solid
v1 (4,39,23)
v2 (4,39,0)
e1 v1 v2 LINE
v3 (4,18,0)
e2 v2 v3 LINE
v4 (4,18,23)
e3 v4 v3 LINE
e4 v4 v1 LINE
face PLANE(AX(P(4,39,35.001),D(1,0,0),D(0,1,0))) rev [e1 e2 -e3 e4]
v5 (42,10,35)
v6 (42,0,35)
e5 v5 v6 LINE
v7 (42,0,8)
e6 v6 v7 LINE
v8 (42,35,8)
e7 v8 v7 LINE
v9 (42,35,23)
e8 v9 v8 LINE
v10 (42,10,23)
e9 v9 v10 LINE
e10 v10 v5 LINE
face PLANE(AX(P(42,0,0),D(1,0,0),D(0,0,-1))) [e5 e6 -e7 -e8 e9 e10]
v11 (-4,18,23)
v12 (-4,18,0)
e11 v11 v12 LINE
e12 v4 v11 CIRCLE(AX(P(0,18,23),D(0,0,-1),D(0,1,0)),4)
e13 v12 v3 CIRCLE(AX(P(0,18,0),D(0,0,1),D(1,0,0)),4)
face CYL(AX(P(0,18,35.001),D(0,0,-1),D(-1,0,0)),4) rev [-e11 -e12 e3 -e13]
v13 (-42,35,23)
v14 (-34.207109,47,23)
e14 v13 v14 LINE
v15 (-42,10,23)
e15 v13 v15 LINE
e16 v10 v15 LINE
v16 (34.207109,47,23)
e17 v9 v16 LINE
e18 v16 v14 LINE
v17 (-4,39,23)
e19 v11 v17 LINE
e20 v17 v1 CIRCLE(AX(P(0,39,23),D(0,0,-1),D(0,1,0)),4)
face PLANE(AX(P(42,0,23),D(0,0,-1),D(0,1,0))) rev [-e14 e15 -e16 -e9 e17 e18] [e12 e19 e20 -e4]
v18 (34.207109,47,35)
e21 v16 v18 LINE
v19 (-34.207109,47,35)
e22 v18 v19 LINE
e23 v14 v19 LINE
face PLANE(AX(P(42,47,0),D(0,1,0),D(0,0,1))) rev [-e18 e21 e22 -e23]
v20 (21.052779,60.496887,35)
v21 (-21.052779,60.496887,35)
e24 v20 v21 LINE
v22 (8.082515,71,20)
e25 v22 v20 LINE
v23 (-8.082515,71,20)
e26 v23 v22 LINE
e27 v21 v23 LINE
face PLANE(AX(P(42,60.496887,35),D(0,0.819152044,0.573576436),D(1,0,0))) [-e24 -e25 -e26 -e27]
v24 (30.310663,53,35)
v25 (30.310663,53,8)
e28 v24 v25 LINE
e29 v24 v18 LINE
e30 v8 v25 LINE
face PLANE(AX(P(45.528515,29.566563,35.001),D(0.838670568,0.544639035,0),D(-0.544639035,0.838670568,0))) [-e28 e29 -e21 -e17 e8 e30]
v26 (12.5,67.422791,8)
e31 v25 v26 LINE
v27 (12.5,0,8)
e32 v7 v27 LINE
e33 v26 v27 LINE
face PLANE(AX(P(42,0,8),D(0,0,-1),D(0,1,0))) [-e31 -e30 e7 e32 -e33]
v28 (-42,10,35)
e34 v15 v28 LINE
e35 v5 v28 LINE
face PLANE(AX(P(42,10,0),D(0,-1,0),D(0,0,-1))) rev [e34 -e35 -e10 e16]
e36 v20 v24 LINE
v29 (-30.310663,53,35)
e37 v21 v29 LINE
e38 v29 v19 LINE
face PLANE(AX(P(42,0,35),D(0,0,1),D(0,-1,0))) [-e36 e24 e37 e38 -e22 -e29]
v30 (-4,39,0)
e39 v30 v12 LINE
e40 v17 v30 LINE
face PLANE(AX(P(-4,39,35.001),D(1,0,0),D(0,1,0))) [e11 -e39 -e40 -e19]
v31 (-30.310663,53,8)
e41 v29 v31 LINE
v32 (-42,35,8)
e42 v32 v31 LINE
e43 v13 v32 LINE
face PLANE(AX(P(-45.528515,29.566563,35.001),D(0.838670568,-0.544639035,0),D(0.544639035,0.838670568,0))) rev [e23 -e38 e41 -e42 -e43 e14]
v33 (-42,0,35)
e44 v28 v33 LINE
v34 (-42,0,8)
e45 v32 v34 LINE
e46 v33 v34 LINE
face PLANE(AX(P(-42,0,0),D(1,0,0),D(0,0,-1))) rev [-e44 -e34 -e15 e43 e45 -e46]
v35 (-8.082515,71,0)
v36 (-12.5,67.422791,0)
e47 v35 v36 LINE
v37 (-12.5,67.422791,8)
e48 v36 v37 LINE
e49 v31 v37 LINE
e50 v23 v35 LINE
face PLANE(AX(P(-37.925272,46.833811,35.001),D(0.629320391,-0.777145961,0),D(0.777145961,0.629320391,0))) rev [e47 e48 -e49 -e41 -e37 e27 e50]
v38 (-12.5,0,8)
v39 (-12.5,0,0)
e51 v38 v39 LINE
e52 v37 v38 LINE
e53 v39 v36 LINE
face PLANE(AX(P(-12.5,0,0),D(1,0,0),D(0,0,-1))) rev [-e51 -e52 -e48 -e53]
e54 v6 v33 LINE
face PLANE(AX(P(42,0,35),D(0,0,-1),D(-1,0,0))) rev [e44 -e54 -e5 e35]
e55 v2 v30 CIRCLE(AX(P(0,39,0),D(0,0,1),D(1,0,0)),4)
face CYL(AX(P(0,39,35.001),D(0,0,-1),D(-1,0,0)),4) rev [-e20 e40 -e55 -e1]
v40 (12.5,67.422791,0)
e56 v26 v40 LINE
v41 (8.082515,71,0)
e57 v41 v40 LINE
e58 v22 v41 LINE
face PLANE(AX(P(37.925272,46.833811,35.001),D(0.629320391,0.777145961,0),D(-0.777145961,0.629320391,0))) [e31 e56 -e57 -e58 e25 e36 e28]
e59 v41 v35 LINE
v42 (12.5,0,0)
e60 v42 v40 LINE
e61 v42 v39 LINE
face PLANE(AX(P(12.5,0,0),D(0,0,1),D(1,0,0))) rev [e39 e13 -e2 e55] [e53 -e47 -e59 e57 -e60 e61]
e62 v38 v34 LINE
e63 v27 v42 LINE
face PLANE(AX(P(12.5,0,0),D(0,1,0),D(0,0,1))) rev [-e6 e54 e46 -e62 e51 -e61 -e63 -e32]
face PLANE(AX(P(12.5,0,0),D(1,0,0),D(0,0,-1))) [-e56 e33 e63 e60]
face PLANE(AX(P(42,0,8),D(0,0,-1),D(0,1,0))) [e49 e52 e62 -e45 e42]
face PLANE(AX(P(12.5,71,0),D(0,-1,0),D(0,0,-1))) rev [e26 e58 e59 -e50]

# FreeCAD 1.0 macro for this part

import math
import FreeCAD as App
import Part
import Sketcher
Q = App.Units.Quantity


def edges_at(feature, points):
    """Names of the edges that pass closest to the given points."""
    edges = feature.Shape.Edges
    near = lambda p: min(range(len(edges)), key=lambda i: edges[i].distToShape(Part.Vertex(*p))[0])
    return sorted({f"Edge{near(p) + 1}" for p in points})


def add_polygon(sketch, points):
    """Adds a closed chain of lines whose ends are joined by coincident constraints."""
    first, n = sketch.GeometryCount, len(points)
    for a, b in zip(points, points[1:] + points[:1]):
        sketch.addGeometry(Part.LineSegment(App.Vector(*a, 0), App.Vector(*b, 0)), False)
    for i in range(n):
        sketch.addConstraint(Sketcher.Constraint("Coincident", first + i, 2, first + (i + 1) % n, 1))

doc = App.newDocument("Part")
body = doc.addObject("PartDesign::Body", "Body")

# Sketch on YZ plane
sketch1 = doc.addObject("Sketcher::SketchObject", "Sketch")
body.addObject(sketch1)
sketch1.AttachmentSupport = (doc.YZ_Plane, [""])
sketch1.MapMode = "FlatFace"
add_polygon(sketch1, [(71, 8), (0, 8), (0, 0), (71, 0)])  # lines 0-3
sketch1.addConstraint([
    Sketcher.Constraint("Horizontal", 0),
    Sketcher.Constraint("Vertical", 1),
    Sketcher.Constraint("Horizontal", 2),
    Sketcher.Constraint("Vertical", 3),
    Sketcher.Constraint("Coincident", 1, 2, -1, 1),
    Sketcher.Constraint("DistanceX", 0, 2, 0, 1, Q("71 mm")),
    Sketcher.Constraint("DistanceY", 1, 2, 1, 1, Q("8 mm")),
])
pad1 = doc.addObject("PartDesign::Pad", "Pad")
body.addObject(pad1)
pad1.Profile = sketch1
pad1.Length = 25
pad1.Midplane = True

# Sketch on YZ plane
sketch2 = doc.addObject("Sketcher::SketchObject", "Sketch001")
body.addObject(sketch2)
sketch2.AttachmentSupport = (doc.YZ_Plane, [""])
sketch2.MapMode = "FlatFace"
add_polygon(sketch2, [(0, 35), (0, 8), (71, 8), (71, 35), (47, 35), (47, 23), (10, 23), (10, 35)])  # lines 0-7
sketch2.addConstraint([
    Sketcher.Constraint("Vertical", 0),
    Sketcher.Constraint("Horizontal", 1),
    Sketcher.Constraint("Vertical", 2),
    Sketcher.Constraint("Horizontal", 3),
    Sketcher.Constraint("Vertical", 4),
    Sketcher.Constraint("Horizontal", 5),
    Sketcher.Constraint("Vertical", 6),
    Sketcher.Constraint("Horizontal", 7),
    Sketcher.Constraint("PointOnObject", 0, 2, -2),
    Sketcher.Constraint("Horizontal", 3, 2, 6, 2),
    Sketcher.Constraint("DistanceX", 1, 1, 1, 2, Q("71 mm")),
    Sketcher.Constraint("DistanceX", 3, 2, 3, 1, Q("24 mm")),
    Sketcher.Constraint("DistanceX", 5, 2, 5, 1, Q("37 mm")),
    Sketcher.Constraint("DistanceY", 0, 2, 0, 1, Q("27 mm")),
    Sketcher.Constraint("DistanceY", 4, 2, 4, 1, Q("12 mm")),
    Sketcher.Constraint("DistanceY", -1, 1, 0, 2, Q("8 mm")),
])
pad2 = doc.addObject("PartDesign::Pad", "Pad001")
body.addObject(pad2)
pad2.Profile = sketch2
pad2.Length = 84
pad2.Midplane = True

# Sketch on XY plane
sketch3 = doc.addObject("Sketcher::SketchObject", "Sketch002")
body.addObject(sketch3)
sketch3.AttachmentSupport = (doc.XY_Plane, [""])
sketch3.MapMode = "FlatFace"
add_polygon(sketch3, [(42, 35), (42, 71), (8, 71), (30, 53)])  # lines 0-3
sketch3.addConstraint([
    Sketcher.Constraint("Vertical", 0),
    Sketcher.Constraint("Horizontal", 1),
    Sketcher.Constraint("DistanceY", 0, 1, 0, 2, Q("36 mm")),
    Sketcher.Constraint("Angle", 2, Q("-39 deg")),
    Sketcher.Constraint("Angle", 3, Q("-57 deg")),
    Sketcher.Constraint("DistanceX", -1, 1, 0, 2, Q("42 mm")),
    Sketcher.Constraint("DistanceY", -1, 1, 0, 2, Q("71 mm")),
    Sketcher.Constraint("DistanceY", -1, 1, 2, 2, Q("53 mm")),
])
pocket1 = doc.addObject("PartDesign::Pocket", "Pocket")
body.addObject(pocket1)
pocket1.Profile = sketch3
pocket1.Length = 35
pocket1.Reversed = True

# Sketch on XY plane
sketch4 = doc.addObject("Sketcher::SketchObject", "Sketch003")
body.addObject(sketch4)
sketch4.AttachmentSupport = (doc.XY_Plane, [""])
sketch4.MapMode = "FlatFace"
add_polygon(sketch4, [(-30, 53), (-8, 71), (-42, 71), (-42, 35)])  # lines 0-3
sketch4.addConstraint([
    Sketcher.Constraint("Horizontal", 1),
    Sketcher.Constraint("Vertical", 2),
    Sketcher.Constraint("DistanceY", 2, 2, 2, 1, Q("36 mm")),
    Sketcher.Constraint("Angle", 0, Q("39 deg")),
    Sketcher.Constraint("Angle", 3, Q("57 deg")),
    Sketcher.Constraint("DistanceY", -1, 1, 0, 2, Q("71 mm")),
    Sketcher.Constraint("DistanceX", 1, 2, -1, 1, Q("42 mm")),
    Sketcher.Constraint("DistanceY", -1, 1, 3, 2, Q("53 mm")),
])
pocket2 = doc.addObject("PartDesign::Pocket", "Pocket001")
body.addObject(pocket2)
pocket2.Profile = sketch4
pocket2.Length = 35
pocket2.Reversed = True

# Sketch on XY plane
sketch5 = doc.addObject("Sketcher::SketchObject", "Sketch004")
body.addObject(sketch5)
sketch5.AttachmentSupport = (doc.XY_Plane, [""])
sketch5.MapMode = "FlatFace"
sketch5.addGeometry([
    Part.ArcOfCircle(Part.Circle(App.Vector(0, 39, 0), App.Vector(0, 0, 1), 4), math.radians(0), math.radians(180)),
    Part.LineSegment(App.Vector(-4, 39, 0), App.Vector(-4, 18, 0)),
    Part.ArcOfCircle(Part.Circle(App.Vector(0, 18, 0), App.Vector(0, 0, 1), 4), math.radians(180), math.radians(360)),
    Part.LineSegment(App.Vector(4, 18, 0), App.Vector(4, 39, 0)),
], False)
sketch5.addConstraint([
    Sketcher.Constraint("Tangent", 0, 2, 1, 1),
    Sketcher.Constraint("Tangent", 1, 2, 2, 1),
    Sketcher.Constraint("Tangent", 2, 2, 3, 1),
    Sketcher.Constraint("Tangent", 3, 2, 0, 1),
    Sketcher.Constraint("Vertical", 1),
    Sketcher.Constraint("Vertical", 3),
    Sketcher.Constraint("PointOnObject", 0, 3, -2),
    Sketcher.Constraint("Radius", 0, Q("4 mm")),
    Sketcher.Constraint("DistanceY", 1, 2, 1, 1, Q("21 mm")),
    Sketcher.Constraint("DistanceY", -1, 1, 0, 3, Q("39 mm")),
])
pocket3 = doc.addObject("PartDesign::Pocket", "Pocket002")
body.addObject(pocket3)
pocket3.Profile = sketch5
pocket3.Type = "UpToFirst"
pocket3.Reversed = True
doc.recompute()

chamfer = doc.addObject("PartDesign::Chamfer", "Chamfer")
body.addObject(chamfer)
chamfer.Base = (pocket3, edges_at(pocket3, [(0, 71, 35)]))
chamfer.ChamferType = "Two distances"
chamfer.Size = 15
chamfer.Size2 = 10.503113

doc.recompute()
